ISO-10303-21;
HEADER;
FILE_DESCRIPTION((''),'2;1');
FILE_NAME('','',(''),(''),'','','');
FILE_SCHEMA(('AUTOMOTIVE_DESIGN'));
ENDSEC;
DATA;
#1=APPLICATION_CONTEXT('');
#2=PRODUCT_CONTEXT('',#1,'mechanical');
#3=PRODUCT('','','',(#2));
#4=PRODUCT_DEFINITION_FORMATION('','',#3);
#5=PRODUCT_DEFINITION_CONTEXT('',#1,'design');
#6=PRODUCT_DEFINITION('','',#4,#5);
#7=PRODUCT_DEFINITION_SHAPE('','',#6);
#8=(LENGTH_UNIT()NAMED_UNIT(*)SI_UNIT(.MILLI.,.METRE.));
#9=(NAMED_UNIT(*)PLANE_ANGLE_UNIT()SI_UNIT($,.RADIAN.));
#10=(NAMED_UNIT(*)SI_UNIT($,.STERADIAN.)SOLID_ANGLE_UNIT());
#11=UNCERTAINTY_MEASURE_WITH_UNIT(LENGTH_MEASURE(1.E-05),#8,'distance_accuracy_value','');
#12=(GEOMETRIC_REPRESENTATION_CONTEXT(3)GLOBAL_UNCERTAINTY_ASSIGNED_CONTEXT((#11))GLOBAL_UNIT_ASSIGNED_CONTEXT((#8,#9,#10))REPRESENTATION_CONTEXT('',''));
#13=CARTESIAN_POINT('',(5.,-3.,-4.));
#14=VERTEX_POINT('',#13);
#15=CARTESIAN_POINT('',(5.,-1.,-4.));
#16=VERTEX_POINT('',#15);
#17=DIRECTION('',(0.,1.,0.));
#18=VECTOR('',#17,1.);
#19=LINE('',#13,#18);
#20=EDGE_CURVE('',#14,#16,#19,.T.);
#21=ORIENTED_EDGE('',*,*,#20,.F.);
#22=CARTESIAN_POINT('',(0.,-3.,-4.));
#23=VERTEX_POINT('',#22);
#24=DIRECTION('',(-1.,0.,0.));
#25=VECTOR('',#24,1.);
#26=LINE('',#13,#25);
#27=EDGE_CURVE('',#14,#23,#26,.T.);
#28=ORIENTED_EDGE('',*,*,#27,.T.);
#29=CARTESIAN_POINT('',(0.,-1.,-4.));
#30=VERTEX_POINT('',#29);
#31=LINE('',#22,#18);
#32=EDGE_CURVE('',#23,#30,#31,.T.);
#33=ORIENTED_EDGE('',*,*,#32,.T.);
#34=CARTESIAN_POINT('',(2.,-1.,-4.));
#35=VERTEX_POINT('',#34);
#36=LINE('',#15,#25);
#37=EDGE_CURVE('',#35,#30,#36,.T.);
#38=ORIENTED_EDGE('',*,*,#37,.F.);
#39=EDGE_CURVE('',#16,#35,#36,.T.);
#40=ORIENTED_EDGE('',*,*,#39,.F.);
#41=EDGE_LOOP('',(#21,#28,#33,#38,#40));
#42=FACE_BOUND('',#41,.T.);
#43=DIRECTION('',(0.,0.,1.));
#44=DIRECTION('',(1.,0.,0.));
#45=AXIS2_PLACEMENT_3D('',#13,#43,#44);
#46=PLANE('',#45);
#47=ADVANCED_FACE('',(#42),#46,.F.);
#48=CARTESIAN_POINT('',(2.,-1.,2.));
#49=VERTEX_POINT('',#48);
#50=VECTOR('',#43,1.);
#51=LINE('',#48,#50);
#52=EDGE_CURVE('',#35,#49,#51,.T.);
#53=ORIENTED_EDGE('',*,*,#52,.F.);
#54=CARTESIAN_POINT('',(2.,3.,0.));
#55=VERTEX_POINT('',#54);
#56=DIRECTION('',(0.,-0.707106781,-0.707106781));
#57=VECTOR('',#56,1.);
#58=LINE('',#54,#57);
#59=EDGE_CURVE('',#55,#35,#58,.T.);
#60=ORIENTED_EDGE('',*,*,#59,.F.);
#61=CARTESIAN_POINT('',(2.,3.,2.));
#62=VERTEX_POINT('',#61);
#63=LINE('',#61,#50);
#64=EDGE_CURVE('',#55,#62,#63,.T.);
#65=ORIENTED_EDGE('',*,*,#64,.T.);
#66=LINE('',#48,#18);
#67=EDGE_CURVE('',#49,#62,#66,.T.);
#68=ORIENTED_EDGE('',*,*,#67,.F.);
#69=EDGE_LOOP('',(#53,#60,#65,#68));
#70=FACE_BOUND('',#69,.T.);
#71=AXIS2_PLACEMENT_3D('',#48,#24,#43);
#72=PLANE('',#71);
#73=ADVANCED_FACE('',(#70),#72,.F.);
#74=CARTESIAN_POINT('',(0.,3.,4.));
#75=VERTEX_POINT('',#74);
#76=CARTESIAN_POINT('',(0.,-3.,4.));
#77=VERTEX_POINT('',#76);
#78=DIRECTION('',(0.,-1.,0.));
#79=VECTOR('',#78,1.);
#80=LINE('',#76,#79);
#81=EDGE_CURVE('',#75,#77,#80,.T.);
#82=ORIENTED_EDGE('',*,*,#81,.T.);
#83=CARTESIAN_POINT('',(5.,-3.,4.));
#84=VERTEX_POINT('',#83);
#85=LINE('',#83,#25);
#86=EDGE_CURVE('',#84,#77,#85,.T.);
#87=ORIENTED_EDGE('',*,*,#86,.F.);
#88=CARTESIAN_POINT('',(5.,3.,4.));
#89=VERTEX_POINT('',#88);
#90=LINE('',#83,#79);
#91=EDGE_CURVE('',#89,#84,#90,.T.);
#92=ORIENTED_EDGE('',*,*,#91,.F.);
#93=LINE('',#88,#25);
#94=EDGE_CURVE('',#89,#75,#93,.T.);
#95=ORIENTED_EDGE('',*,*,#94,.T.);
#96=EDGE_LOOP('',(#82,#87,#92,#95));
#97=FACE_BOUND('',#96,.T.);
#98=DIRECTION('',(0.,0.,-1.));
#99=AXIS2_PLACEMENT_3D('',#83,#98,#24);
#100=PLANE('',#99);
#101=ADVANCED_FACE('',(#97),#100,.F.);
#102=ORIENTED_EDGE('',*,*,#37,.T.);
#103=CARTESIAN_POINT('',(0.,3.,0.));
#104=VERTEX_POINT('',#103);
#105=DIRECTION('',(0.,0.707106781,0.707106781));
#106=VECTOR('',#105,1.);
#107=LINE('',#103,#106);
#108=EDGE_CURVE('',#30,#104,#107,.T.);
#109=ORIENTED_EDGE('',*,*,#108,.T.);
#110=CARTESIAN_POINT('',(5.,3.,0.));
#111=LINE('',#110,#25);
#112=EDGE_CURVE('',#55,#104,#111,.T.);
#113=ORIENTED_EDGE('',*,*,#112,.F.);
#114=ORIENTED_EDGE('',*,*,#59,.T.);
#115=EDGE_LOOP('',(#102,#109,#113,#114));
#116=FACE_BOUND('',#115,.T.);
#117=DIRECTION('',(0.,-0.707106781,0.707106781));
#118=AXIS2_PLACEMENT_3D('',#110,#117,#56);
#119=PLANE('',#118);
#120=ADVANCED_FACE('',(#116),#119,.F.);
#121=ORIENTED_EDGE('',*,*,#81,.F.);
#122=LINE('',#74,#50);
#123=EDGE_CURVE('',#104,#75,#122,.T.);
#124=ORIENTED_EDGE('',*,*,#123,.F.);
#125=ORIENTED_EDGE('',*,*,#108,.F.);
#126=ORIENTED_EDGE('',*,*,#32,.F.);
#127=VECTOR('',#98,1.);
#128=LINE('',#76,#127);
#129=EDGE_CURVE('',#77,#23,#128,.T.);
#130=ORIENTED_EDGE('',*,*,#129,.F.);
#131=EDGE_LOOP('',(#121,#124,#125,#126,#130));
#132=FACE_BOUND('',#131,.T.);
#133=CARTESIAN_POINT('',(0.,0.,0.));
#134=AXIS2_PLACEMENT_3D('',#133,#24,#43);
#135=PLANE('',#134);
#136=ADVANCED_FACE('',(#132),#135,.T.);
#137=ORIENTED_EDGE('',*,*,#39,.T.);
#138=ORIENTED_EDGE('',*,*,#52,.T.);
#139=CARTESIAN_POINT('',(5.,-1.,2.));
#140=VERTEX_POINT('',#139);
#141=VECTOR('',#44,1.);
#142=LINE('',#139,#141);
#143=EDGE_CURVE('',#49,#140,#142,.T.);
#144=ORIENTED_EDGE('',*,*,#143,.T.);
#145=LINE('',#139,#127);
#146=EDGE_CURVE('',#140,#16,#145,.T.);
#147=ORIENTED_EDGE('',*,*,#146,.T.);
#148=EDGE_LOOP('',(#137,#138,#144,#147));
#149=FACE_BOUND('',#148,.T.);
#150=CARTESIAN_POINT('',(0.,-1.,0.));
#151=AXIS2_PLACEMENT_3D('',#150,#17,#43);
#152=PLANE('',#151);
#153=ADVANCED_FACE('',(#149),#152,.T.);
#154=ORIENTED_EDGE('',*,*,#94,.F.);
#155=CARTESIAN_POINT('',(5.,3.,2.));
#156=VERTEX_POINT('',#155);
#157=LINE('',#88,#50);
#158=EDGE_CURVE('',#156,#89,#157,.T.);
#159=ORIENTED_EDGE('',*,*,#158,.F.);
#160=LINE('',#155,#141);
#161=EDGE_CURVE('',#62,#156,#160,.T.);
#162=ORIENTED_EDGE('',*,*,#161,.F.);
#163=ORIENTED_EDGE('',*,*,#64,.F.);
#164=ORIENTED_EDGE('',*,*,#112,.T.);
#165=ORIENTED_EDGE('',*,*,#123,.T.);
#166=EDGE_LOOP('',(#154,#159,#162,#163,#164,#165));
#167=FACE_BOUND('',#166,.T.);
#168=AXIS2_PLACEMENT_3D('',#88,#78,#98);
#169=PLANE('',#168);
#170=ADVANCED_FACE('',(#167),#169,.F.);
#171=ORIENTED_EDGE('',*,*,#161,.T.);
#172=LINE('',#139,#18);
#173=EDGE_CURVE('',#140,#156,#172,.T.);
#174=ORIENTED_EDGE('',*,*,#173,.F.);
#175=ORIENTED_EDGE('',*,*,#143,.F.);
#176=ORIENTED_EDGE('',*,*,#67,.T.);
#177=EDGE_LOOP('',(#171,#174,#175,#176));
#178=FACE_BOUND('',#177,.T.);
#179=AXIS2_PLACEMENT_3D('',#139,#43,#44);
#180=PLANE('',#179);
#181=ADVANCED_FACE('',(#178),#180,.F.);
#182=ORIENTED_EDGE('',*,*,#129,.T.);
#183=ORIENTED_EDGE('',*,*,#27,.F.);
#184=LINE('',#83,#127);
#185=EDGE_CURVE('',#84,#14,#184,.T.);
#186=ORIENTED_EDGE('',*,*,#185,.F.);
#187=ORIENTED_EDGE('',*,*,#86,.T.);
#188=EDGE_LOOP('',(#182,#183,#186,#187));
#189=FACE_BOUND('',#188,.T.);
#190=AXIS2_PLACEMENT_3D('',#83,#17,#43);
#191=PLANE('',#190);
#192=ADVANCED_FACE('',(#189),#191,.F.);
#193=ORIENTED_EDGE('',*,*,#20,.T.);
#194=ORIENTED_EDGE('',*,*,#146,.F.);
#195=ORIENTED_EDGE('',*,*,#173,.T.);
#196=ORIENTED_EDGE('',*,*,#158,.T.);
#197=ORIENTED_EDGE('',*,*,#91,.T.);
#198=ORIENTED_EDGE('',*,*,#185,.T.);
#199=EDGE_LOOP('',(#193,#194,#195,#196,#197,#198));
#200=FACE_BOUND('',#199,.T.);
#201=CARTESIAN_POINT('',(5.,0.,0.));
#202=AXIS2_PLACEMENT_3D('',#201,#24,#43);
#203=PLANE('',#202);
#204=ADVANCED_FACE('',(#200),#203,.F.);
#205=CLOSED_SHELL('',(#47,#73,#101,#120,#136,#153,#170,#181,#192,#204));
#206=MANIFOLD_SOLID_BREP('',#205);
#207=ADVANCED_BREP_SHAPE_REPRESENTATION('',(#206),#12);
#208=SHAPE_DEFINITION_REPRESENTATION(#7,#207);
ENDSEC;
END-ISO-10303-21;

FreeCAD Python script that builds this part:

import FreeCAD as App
import Part
import Sketcher

doc = App.newDocument("Part")
body = doc.addObject("PartDesign::Body", "Body")

# Sketch on YZ plane
sketch1 = body.newObject("Sketcher::SketchObject", "Sketch")
sketch1.AttachmentSupport = (doc.getObject("YZ_Plane"), [""])
sketch1.MapMode = "FlatFace"
sketch1.addGeometry([
    Part.LineSegment(App.Vector(-1, -4, 0), App.Vector(3, 0, 0)),  # 0
    Part.LineSegment(App.Vector(3, 0, 0), App.Vector(3, 4, 0)),  # 1
    Part.LineSegment(App.Vector(3, 4, 0), App.Vector(-3, 4, 0)),  # 2
    Part.LineSegment(App.Vector(-3, 4, 0), App.Vector(-3, -4, 0)),  # 3
    Part.LineSegment(App.Vector(-3, -4, 0), App.Vector(-1, -4, 0)),  # 4
], False)
sketch1.addConstraint([
    Sketcher.Constraint("Coincident", 0, 2, 1, 1),
    Sketcher.Constraint("Coincident", 1, 2, 2, 1),
    Sketcher.Constraint("Coincident", 2, 2, 3, 1),
    Sketcher.Constraint("Coincident", 3, 2, 4, 1),
    Sketcher.Constraint("Coincident", 4, 2, 0, 1),
    Sketcher.Constraint("Vertical", 1),
    Sketcher.Constraint("Horizontal", 2),
    Sketcher.Constraint("Vertical", 3),
    Sketcher.Constraint("Horizontal", 4),
    Sketcher.Constraint("Symmetric", 1, 2, 3, 2, -1, 1),
    Sketcher.Constraint("PointOnObject", 0, 2, -1),
    Sketcher.Constraint("DistanceX", 2, 2, 2, 1, 6.0),
    Sketcher.Constraint("DistanceX", 4, 1, 4, 2, 2.0),
    Sketcher.Constraint("DistanceY", 1, 1, 1, 2, 4.0),
])
pad1 = body.newObject("PartDesign::Pad", "Pad")
pad1.Profile = sketch1
pad1.Length = 5

# Sketch on XZ plane
sketch2 = body.newObject("Sketcher::SketchObject", "Sketch001")
sketch2.AttachmentSupport = (doc.getObject("XZ_Plane"), [""])
sketch2.MapMode = "FlatFace"
sketch2.AttachmentOffset = App.Placement(App.Vector(0, 0, -3), App.Rotation())
sketch2.addGeometry([
    Part.LineSegment(App.Vector(2, -4, 0), App.Vector(2, 2, 0)),
    Part.LineSegment(App.Vector(2, 2, 0), App.Vector(5, 2, 0)),
    Part.LineSegment(App.Vector(5, 2, 0), App.Vector(5, -4, 0)),
    Part.LineSegment(App.Vector(5, -4, 0), App.Vector(2, -4, 0)),
], False)
sketch2.addConstraint([
    Sketcher.Constraint("Coincident", 0, 2, 1, 1),
    Sketcher.Constraint("Coincident", 1, 2, 2, 1),
    Sketcher.Constraint("Coincident", 2, 2, 3, 1),
    Sketcher.Constraint("Coincident", 3, 2, 0, 1),
    Sketcher.Constraint("Vertical", 0),
    Sketcher.Constraint("Horizontal", 1),
    Sketcher.Constraint("Vertical", 2),
    Sketcher.Constraint("Horizontal", 3),
    Sketcher.Constraint("DistanceX", 1, 1, 1, 2, 3.0),
    Sketcher.Constraint("DistanceY", 0, 1, 0, 2, 6.0),
    Sketcher.Constraint("DistanceX", -1, 1, 0, 2, 2.0),
    Sketcher.Constraint("DistanceY", -1, 1, 0, 2, 2.0),
])
pocket1 = body.newObject("PartDesign::Pocket", "Pocket")
pocket1.Profile = sketch2
pocket1.Length = 4
pocket1.Reversed = True

doc.recompute()
